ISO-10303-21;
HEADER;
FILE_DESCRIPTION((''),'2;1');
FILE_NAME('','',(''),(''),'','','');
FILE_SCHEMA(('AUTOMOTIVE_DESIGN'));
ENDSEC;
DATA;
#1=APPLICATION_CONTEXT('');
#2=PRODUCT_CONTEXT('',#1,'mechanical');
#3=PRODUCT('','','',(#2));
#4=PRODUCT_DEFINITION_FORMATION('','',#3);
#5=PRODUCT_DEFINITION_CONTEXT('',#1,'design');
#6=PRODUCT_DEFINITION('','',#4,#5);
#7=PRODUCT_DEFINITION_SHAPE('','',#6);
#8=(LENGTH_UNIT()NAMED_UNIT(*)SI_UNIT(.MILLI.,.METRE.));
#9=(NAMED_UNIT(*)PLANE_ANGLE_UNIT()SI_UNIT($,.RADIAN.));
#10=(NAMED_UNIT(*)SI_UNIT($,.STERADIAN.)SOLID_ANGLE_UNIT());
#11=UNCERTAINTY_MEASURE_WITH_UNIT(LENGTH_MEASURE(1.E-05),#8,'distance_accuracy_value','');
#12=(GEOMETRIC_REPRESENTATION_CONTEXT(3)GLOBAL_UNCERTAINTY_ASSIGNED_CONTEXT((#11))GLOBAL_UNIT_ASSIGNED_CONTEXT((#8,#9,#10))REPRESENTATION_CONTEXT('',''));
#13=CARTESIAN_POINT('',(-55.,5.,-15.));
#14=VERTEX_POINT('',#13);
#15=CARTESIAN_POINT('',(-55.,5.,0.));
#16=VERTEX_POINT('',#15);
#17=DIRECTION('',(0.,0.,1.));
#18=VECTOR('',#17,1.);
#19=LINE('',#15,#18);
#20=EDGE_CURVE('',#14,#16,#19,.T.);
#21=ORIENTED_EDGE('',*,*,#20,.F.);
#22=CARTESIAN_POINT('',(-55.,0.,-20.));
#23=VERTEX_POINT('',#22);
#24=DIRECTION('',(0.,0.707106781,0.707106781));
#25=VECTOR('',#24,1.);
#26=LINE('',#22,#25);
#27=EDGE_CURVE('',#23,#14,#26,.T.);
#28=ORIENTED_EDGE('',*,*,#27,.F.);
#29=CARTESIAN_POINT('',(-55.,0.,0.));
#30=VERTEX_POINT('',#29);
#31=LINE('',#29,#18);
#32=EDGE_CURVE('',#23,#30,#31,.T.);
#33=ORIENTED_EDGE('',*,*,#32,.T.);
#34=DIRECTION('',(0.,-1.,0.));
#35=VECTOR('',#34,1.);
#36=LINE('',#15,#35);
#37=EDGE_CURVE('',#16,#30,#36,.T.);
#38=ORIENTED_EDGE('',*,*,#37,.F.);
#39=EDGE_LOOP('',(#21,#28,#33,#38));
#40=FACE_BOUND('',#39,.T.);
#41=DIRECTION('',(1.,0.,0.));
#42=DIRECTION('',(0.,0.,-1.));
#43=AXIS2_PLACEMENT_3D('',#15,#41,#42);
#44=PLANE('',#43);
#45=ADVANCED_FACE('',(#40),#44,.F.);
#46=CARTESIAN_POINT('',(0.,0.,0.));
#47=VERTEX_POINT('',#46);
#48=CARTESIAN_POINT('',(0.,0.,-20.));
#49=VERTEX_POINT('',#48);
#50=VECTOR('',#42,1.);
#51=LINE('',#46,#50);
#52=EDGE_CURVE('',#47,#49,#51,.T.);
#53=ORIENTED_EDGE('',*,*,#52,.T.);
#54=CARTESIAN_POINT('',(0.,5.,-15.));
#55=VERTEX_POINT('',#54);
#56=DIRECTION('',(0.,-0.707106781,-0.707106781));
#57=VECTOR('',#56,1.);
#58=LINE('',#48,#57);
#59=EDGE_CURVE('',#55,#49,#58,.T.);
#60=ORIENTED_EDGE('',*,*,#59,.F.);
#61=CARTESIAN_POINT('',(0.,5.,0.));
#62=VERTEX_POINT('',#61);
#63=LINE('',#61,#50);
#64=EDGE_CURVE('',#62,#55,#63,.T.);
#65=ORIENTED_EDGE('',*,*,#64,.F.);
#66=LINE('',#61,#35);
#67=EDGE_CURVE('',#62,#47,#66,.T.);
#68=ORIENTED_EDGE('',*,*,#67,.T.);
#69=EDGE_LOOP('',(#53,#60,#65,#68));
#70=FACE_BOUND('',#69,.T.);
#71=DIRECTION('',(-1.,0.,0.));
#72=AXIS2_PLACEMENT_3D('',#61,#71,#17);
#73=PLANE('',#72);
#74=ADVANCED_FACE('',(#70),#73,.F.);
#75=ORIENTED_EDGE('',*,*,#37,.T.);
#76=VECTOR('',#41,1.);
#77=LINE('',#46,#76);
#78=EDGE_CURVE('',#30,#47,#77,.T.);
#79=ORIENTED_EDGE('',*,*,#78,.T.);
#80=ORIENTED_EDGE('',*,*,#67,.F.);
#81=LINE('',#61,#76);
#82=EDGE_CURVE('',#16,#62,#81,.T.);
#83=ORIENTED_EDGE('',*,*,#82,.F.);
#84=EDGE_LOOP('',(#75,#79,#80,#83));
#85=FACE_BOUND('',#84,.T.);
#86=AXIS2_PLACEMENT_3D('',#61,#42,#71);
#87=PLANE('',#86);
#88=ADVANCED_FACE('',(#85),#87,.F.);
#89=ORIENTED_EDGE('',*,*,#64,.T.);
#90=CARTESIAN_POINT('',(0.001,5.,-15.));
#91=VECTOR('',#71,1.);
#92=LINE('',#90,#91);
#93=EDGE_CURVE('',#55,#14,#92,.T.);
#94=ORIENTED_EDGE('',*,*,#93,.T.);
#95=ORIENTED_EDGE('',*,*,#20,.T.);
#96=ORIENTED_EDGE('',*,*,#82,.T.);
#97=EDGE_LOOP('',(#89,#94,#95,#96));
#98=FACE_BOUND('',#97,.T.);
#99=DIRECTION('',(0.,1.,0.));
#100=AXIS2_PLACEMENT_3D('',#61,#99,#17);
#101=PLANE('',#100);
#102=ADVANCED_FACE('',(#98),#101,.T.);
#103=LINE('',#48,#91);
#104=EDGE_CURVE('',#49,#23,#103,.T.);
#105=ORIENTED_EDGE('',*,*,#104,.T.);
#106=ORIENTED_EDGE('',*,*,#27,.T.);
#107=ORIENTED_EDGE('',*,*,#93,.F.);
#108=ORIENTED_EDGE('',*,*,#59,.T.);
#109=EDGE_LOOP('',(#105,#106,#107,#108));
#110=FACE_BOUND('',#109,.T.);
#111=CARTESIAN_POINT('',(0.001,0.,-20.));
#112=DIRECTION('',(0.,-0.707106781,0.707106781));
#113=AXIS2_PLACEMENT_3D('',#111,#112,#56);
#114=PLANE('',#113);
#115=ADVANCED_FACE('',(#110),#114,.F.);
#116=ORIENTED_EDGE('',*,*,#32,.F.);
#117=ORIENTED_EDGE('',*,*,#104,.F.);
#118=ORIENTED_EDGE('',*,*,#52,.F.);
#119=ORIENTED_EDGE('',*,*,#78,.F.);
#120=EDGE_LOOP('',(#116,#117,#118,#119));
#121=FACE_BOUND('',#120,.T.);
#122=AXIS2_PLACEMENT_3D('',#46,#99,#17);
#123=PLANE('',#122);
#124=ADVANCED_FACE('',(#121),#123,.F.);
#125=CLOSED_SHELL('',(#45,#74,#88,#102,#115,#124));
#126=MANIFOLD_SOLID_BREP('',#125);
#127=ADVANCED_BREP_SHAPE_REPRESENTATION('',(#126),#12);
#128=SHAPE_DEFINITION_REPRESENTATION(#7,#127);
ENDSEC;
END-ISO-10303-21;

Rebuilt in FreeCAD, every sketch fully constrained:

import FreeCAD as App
import Part
import Sketcher

V = App.Vector


def add_polygon(sketch, points):
    """Adds a closed chain of lines whose ends are joined by coincident constraints."""
    first, n = sketch.GeometryCount, len(points)
    for a, b in zip(points, points[1:] + points[:1]):
        sketch.addGeometry(Part.LineSegment(App.Vector(*a, 0), App.Vector(*b, 0)), False)
    for i in range(n):
        sketch.addConstraint(Sketcher.Constraint("Coincident", first + i, 2, first + (i + 1) % n, 1))

doc = App.newDocument("Part")
body = doc.addObject("PartDesign::Body", "Body")

# Sketch on XZ plane
sketch1 = body.newObject("Sketcher::SketchObject", "Sketch")
sketch1.AttachmentSupport = (doc.getObject("XZ_Plane"), [""])
sketch1.MapMode = "FlatFace"
add_polygon(sketch1, [(-55, -20), (-55, 0), (0, 0), (0, -20)])  # lines 0-3
sketch1.addConstraint([
    Sketcher.Constraint("Vertical", 0),
    Sketcher.Constraint("Horizontal", 1),
    Sketcher.Constraint("Vertical", 2),
    Sketcher.Constraint("Horizontal", 3),
    Sketcher.Constraint("Coincident", 1, 2, -1, 1),
    Sketcher.Constraint("DistanceX", 1, 1, 1, 2, 55.0),
    Sketcher.Constraint("DistanceY", 0, 1, 0, 2, 20.0),
])
pad1 = body.newObject("PartDesign::Pad", "Pad")
pad1.Profile = sketch1
pad1.Length = 5
pad1.Reversed = True

# Sketch on YZ plane
sketch2 = body.newObject("Sketcher::SketchObject", "Sketch001")
sketch2.AttachmentSupport = (doc.getObject("YZ_Plane"), [""])
sketch2.MapMode = "FlatFace"
sketch2.AttachmentOffset = App.Placement(V(0, 0, -55), App.Rotation())
add_polygon(sketch2, [(0, -20), (5, -15), (5, -20)])  # lines 0-2
sketch2.addConstraint([
    Sketcher.Constraint("Vertical", 1),
    Sketcher.Constraint("Horizontal", 2),
    Sketcher.Constraint("PointOnObject", 2, 2, -2),
    Sketcher.Constraint("Equal", 2, 1),
    Sketcher.Constraint("DistanceX", 2, 2, 2, 1, 5.0),
    Sketcher.Constraint("DistanceY", 0, 2, -1, 1, 15.0),
])
pocket1 = body.newObject("PartDesign::Pocket", "Pocket")
pocket1.Profile = sketch2
pocket1.Type = "UpToFirst"
pocket1.Reversed = True

doc.recompute()
